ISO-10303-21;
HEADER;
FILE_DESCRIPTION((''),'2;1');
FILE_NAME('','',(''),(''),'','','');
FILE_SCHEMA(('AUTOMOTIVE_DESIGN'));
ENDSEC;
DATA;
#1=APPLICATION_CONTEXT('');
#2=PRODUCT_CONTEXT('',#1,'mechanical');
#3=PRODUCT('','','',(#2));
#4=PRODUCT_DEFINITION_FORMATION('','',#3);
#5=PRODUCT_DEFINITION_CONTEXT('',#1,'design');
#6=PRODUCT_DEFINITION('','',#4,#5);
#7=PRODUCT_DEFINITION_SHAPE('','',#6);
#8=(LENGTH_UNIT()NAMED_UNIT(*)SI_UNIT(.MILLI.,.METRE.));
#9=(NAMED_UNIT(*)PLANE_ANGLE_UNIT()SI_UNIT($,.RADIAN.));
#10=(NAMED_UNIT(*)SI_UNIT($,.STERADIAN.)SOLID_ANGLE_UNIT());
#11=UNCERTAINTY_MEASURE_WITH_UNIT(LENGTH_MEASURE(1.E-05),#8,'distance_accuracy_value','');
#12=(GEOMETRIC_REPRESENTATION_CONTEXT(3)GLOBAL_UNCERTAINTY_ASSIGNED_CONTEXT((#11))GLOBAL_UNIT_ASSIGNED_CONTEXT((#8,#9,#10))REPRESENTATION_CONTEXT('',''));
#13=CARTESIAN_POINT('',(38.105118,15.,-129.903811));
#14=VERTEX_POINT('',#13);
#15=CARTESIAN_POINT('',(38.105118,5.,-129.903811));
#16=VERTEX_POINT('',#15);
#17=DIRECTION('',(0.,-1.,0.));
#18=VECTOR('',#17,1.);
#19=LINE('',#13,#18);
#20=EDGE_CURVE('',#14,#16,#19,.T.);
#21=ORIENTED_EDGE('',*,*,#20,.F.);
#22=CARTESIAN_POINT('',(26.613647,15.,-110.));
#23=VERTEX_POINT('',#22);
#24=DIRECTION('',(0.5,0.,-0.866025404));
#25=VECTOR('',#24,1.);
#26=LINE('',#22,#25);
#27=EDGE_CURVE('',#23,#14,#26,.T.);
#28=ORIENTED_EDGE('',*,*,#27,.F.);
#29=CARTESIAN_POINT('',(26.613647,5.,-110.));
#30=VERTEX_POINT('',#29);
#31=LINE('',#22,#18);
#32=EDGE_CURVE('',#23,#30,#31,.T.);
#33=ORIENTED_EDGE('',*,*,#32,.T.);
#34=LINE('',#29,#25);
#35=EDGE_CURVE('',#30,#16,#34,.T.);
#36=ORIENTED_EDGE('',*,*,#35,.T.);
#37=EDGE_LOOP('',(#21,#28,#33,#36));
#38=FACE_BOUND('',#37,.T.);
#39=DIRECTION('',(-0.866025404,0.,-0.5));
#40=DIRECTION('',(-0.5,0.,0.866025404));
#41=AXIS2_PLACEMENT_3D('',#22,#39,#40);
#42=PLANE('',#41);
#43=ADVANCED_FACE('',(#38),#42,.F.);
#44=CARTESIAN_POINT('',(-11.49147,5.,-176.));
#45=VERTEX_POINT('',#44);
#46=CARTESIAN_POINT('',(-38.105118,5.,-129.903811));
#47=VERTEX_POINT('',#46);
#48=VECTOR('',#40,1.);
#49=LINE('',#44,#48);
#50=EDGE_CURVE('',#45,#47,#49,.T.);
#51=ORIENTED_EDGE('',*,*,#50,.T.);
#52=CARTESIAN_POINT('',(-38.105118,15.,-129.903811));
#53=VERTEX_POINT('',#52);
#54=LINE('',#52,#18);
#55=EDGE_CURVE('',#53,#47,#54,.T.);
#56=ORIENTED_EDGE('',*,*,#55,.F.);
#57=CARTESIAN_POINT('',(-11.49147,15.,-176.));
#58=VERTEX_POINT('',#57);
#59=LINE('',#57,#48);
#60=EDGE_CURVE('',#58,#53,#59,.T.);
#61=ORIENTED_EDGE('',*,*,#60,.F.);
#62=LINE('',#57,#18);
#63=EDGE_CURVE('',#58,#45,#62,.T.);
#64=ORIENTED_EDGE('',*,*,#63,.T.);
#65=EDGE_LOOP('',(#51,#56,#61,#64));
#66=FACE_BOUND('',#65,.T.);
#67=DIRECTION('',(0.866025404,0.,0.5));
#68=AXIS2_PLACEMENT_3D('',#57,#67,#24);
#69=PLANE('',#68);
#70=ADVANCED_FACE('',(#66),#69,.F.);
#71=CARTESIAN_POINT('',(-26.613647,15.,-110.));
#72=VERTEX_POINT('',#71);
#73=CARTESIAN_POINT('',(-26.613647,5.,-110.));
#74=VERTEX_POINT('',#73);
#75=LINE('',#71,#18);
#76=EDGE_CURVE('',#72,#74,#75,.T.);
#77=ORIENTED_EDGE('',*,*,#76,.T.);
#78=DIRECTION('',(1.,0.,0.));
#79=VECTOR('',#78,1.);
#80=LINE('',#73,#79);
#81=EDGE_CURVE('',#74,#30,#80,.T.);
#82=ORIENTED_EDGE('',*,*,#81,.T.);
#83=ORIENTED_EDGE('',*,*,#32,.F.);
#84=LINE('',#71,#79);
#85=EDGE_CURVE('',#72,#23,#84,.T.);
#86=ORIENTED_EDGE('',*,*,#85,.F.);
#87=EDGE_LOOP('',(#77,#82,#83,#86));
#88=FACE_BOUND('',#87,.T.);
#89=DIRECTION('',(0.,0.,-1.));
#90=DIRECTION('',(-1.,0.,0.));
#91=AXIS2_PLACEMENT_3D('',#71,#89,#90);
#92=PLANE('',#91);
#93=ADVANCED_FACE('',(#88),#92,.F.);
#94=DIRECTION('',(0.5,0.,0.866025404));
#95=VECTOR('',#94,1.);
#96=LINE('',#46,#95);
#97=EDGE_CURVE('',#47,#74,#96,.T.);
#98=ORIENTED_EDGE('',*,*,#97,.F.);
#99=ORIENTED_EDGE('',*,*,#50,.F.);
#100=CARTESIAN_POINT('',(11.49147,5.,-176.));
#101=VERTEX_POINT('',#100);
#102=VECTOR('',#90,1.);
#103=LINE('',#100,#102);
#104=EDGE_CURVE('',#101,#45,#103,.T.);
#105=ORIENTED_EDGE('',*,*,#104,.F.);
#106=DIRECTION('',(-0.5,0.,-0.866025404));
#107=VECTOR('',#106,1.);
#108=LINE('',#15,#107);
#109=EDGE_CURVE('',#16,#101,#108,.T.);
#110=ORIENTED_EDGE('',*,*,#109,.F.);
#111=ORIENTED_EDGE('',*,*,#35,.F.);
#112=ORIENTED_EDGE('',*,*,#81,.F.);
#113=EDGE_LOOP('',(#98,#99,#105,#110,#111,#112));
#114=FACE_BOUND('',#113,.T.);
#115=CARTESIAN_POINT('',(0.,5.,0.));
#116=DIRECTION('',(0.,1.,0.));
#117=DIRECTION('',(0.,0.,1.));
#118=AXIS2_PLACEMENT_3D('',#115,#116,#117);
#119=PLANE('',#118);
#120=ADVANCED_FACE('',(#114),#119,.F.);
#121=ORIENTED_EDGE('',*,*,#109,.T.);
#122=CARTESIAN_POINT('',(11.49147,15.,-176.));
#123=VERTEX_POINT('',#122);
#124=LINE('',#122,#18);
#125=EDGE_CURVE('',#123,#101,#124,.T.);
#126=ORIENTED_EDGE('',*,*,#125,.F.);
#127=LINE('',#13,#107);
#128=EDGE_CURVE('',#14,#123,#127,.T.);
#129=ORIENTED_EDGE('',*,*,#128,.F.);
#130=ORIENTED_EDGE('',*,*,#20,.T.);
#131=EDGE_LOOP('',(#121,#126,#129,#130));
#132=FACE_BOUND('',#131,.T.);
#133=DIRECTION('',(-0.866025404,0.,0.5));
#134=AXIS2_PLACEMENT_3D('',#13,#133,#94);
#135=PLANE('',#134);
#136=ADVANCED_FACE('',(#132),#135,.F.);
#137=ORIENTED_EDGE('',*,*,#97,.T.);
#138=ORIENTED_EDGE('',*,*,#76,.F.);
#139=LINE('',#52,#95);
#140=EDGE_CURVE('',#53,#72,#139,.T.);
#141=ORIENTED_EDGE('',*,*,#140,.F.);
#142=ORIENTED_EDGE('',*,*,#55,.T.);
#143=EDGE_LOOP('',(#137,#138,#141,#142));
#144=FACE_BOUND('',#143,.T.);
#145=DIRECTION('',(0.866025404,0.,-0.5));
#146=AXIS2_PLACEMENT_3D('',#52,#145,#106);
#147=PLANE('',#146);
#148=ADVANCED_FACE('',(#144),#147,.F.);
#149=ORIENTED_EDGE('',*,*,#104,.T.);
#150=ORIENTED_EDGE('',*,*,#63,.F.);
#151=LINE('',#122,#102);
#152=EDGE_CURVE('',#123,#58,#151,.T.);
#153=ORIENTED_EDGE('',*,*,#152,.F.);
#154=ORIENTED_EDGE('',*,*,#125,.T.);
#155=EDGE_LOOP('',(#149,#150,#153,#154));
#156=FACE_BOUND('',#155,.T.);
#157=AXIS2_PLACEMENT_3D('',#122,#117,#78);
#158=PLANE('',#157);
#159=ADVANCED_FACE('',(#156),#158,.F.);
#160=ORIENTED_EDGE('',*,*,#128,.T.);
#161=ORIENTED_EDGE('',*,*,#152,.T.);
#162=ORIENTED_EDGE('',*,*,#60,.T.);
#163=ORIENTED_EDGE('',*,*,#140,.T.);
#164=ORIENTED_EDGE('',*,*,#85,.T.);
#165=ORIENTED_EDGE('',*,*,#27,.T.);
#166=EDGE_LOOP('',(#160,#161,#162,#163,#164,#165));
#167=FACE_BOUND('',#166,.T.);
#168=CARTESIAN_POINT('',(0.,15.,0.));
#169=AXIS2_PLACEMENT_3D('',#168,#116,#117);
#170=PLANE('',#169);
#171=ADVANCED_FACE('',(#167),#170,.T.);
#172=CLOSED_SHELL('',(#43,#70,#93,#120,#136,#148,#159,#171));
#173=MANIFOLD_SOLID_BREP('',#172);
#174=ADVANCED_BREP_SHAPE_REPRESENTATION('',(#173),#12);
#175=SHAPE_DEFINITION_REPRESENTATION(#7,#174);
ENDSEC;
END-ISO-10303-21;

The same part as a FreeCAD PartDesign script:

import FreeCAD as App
import Part
import Sketcher
Q = App.Units.Quantity


def edges_at(feature, points):
    """Names of the edges that pass closest to the given points."""
    edges = feature.Shape.Edges
    near = lambda p: min(range(len(edges)), key=lambda i: edges[i].distToShape(Part.Vertex(*p))[0])
    return sorted({f"Edge{near(p) + 1}" for p in points})

doc = App.newDocument("Part")
body = doc.addObject("PartDesign::Body", "Body")

sketch1 = doc.addObject("Sketcher::SketchObject", "Sketch")
body.addObject(sketch1)
sketch1.AttachmentSupport = (doc.XZ_Plane, [""])
sketch1.MapMode = "FlatFace"
sketch1.addGeometry([
    Part.LineSegment(App.Vector(-90, 0, 0), App.Vector(90, 0, 0)),
    Part.LineSegment(App.Vector(90, 0, 0), App.Vector(165, -130, 0)),
    Part.LineSegment(App.Vector(165, -130, 0), App.Vector(75, -286, 0)),
    Part.LineSegment(App.Vector(75, -286, 0), App.Vector(-75, -286, 0)),
    Part.LineSegment(App.Vector(-75, -286, 0), App.Vector(-165, -130, 0)),
    Part.LineSegment(App.Vector(-165, -130, 0), App.Vector(-90, 0, 0)),
], False)
sketch1.addConstraint([
    Sketcher.Constraint("Coincident", 0, 2, 1, 1),
    Sketcher.Constraint("Coincident", 1, 2, 2, 1),
    Sketcher.Constraint("Coincident", 2, 2, 3, 1),
    Sketcher.Constraint("Coincident", 3, 2, 4, 1),
    Sketcher.Constraint("Coincident", 4, 2, 5, 1),
    Sketcher.Constraint("Coincident", 5, 2, 0, 1),
    Sketcher.Constraint("Horizontal", 0),
    Sketcher.Constraint("Horizontal", 3),
    Sketcher.Constraint("Symmetric", 0, 2, 5, 2, -1, 1),
    Sketcher.Constraint("Symmetric", 1, 2, 4, 2, -2),
    Sketcher.Constraint("Parallel", 1, 4),
    Sketcher.Constraint("Parallel", 2, 5),
    Sketcher.Constraint("DistanceX", 3, 2, 3, 1, 150.0),
    Sketcher.Constraint("Angle", 1, Q("-60 deg")),
    Sketcher.Constraint("Distance", 1, 150.0),
    Sketcher.Constraint("DistanceY", 2, 2, -1, 1, 286.0),
])
pad1 = doc.addObject("PartDesign::Pad", "Pad")
body.addObject(pad1)
pad1.Profile = sketch1
pad1.Length = 5
pad1.Reversed = True
doc.recompute()

fillet = doc.addObject("PartDesign::Fillet", "Fillet")
body.addObject(fillet)
fillet.Base = (pad1, edges_at(pad1, [
    (-165.122, 2.5, -129.904),
    (-75, 2.5, -286),
    (75, 2.5, -286),
    (165.122, 2.5, -129.904),
    (90.122, 2.5, 0),
    (-90.122, 2.5, 0),
]))
fillet.Radius = 20

sketch2 = doc.addObject("Sketcher::SketchObject", "Sketch001")
body.addObject(sketch2)
sketch2.AttachmentSupport = (doc.XZ_Plane, [""])
sketch2.MapMode = "FlatFace"
sketch2.AttachmentOffset = App.Placement(App.Vector(0, 0, -5), App.Rotation())
sketch2.addGeometry([
    Part.LineSegment(App.Vector(-27, -110, 0), App.Vector(27, -110, 0)),
    Part.LineSegment(App.Vector(27, -110, 0), App.Vector(38, -130, 0)),
    Part.LineSegment(App.Vector(38, -130, 0), App.Vector(11, -176, 0)),
    Part.LineSegment(App.Vector(11, -176, 0), App.Vector(-11, -176, 0)),
    Part.LineSegment(App.Vector(-11, -176, 0), App.Vector(-38, -130, 0)),
    Part.LineSegment(App.Vector(-38, -130, 0), App.Vector(-27, -110, 0)),
], False)
sketch2.addConstraint([
    Sketcher.Constraint("Coincident", 0, 2, 1, 1),
    Sketcher.Constraint("Coincident", 1, 2, 2, 1),
    Sketcher.Constraint("Coincident", 2, 2, 3, 1),
    Sketcher.Constraint("Coincident", 3, 2, 4, 1),
    Sketcher.Constraint("Coincident", 4, 2, 5, 1),
    Sketcher.Constraint("Coincident", 5, 2, 0, 1),
    Sketcher.Constraint("Horizontal", 0),
    Sketcher.Constraint("Horizontal", 3),
    Sketcher.Constraint("Symmetric", 1, 2, 4, 2, -2),
    Sketcher.Constraint("Parallel", 1, 4),
    Sketcher.Constraint("Parallel", 2, 5),
    Sketcher.Constraint("Equal", 2, 4),
    Sketcher.Constraint("Angle", 1, Q("-60 deg")),
    Sketcher.Constraint("DistanceY", 0, 2, -1, 1, 110.0),
    Sketcher.Constraint("DistanceY", 2, 2, -1, 1, 176.0),
    Sketcher.Constraint("DistanceX", 3, 2, 3, 1, 22.982941),
    Sketcher.Constraint("Distance", 1, 22.982941),
])
pad2 = doc.addObject("PartDesign::Pad", "Pad001")
body.addObject(pad2)
pad2.Profile = sketch2
pad2.Length = 10
pad2.Reversed = True

sketch3 = doc.addObject("Sketcher::SketchObject", "Sketch002")
body.addObject(sketch3)
sketch3.AttachmentSupport = (doc.XZ_Plane, [""])
sketch3.MapMode = "FlatFace"
sketch3.AttachmentOffset = App.Placement(App.Vector(0, 0, -5), App.Rotation())
sketch3.addGeometry([
    Part.LineSegment(App.Vector(-218, -303, 0), App.Vector(-218, 22, 0)),
    Part.LineSegment(App.Vector(-218, 22, 0), App.Vector(241, 22, 0)),
    Part.LineSegment(App.Vector(241, 22, 0), App.Vector(241, -303, 0)),
    Part.LineSegment(App.Vector(241, -303, 0), App.Vector(-218, -303, 0)),
], False)
sketch3.addConstraint([
    Sketcher.Constraint("Coincident", 0, 2, 1, 1),
    Sketcher.Constraint("Coincident", 1, 2, 2, 1),
    Sketcher.Constraint("Coincident", 2, 2, 3, 1),
    Sketcher.Constraint("Coincident", 3, 2, 0, 1),
    Sketcher.Constraint("Vertical", 0),
    Sketcher.Constraint("Horizontal", 1),
    Sketcher.Constraint("Vertical", 2),
    Sketcher.Constraint("Horizontal", 3),
    Sketcher.Constraint("DistanceX", 1, 1, 1, 2, 458.835278),
    Sketcher.Constraint("DistanceY", 0, 1, 0, 2, 325.644745),
    Sketcher.Constraint("DistanceX", -1, 1, 1, 2, 241.331471),
    Sketcher.Constraint("DistanceY", 2, 2, -1, 1, 303.378509),
])
pocket1 = doc.addObject("PartDesign::Pocket", "Pocket")
body.addObject(pocket1)
pocket1.Profile = sketch3
pocket1.Length = 10
pocket1.Reversed = True

doc.recompute()
